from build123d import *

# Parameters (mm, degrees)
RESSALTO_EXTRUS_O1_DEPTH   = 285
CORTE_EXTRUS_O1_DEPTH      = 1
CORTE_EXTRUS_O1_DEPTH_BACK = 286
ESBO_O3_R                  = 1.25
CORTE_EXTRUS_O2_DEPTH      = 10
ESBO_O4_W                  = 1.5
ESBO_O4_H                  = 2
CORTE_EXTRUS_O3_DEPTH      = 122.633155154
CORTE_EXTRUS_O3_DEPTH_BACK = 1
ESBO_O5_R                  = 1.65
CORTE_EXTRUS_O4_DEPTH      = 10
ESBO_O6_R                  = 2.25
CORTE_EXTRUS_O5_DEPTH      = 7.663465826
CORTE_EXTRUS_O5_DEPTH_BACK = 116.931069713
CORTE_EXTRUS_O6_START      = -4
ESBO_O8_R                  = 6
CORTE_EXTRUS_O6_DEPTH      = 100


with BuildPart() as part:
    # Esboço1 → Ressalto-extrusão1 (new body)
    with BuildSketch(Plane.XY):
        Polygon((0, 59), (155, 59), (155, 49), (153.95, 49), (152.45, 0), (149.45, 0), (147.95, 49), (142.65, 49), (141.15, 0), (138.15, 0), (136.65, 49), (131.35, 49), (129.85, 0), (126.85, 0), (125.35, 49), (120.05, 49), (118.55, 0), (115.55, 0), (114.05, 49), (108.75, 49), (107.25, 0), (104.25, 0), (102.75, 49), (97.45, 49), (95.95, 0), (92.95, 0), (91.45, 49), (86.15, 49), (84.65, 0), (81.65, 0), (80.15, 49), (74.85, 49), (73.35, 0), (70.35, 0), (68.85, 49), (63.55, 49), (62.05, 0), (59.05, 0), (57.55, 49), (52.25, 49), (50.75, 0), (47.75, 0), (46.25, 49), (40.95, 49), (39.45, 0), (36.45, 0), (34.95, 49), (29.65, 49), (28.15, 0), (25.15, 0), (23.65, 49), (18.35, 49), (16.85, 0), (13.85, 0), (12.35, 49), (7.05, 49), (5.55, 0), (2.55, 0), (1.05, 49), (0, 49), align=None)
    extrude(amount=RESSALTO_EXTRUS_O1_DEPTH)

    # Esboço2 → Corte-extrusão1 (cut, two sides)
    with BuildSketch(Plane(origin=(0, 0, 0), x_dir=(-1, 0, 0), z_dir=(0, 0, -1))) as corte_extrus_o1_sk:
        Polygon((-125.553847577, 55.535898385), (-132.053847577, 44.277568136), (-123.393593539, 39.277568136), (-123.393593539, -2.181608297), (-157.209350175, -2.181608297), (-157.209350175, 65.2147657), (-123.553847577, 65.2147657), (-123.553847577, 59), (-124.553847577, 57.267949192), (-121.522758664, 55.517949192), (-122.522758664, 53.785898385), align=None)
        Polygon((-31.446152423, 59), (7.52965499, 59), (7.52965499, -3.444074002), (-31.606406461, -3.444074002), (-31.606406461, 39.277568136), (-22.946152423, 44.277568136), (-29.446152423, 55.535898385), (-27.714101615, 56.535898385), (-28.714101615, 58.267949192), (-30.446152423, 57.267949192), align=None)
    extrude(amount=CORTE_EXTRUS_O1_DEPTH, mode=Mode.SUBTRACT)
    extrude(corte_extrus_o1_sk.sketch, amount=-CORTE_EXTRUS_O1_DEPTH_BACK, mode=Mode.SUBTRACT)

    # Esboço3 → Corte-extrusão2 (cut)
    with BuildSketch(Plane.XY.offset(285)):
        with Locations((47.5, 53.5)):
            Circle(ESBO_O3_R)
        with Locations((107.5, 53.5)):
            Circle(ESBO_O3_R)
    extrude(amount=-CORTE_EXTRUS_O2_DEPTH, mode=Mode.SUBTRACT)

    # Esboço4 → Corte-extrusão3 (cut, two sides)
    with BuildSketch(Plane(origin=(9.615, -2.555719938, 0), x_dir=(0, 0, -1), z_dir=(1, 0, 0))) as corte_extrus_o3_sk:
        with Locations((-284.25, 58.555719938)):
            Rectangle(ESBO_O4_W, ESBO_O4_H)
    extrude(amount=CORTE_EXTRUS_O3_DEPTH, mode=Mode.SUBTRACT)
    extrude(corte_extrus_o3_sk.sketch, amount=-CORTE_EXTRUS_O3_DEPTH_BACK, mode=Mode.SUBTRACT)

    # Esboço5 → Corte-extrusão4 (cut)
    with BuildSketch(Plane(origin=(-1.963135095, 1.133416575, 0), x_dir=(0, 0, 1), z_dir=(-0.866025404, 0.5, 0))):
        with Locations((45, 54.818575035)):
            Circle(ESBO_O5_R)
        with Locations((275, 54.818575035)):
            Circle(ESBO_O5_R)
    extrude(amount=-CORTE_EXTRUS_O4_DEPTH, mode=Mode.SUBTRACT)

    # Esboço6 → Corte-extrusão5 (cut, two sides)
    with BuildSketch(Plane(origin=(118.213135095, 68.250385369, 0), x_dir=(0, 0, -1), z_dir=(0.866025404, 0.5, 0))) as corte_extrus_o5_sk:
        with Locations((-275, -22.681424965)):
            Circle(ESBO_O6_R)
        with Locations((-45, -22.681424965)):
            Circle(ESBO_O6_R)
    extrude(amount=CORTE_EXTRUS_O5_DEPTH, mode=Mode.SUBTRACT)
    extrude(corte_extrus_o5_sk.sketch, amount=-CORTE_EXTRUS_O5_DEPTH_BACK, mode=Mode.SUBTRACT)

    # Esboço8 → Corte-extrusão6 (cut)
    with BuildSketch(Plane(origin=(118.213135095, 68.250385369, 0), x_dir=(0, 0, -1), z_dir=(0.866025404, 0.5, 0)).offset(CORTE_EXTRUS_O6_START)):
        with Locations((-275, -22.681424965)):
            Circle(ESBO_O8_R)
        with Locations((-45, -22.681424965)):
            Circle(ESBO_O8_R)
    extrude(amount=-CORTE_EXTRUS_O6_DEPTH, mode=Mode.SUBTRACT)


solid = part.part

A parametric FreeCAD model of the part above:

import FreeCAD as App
import Part
import Sketcher
Q = App.Units.Quantity


def add_polygon(sketch, points):
    """Adds a closed chain of lines whose ends are joined by coincident constraints."""
    first, n = sketch.GeometryCount, len(points)
    for a, b in zip(points, points[1:] + points[:1]):
        sketch.addGeometry(Part.LineSegment(App.Vector(*a, 0), App.Vector(*b, 0)), False)
    for i in range(n):
        sketch.addConstraint(Sketcher.Constraint("Coincident", first + i, 2, first + (i + 1) % n, 1))

doc = App.newDocument("Part")
body = doc.addObject("PartDesign::Body", "Body")

# Sketch on XY plane
sketch1 = doc.addObject("Sketcher::SketchObject", "Sketch")
body.addObject(sketch1)
sketch1.AttachmentSupport = (doc.XY_Plane, [""])
sketch1.MapMode = "FlatFace"
add_polygon(sketch1, [(155, 59), (0, 59), (0, 49), (1.05, 49), (2.55, 0), (5.55, 0), (7.05, 49), (12.35, 49), (13.85, 0), (16.85, 0), (18.35, 49), (23.65, 49), (25.15, 0), (28.15, 0), (29.65, 49), (34.95, 49), (36.45, 0), (39.45, 0), (40.95, 49), (46.25, 49), (47.75, 0), (50.75, 0), (52.25, 49), (57.55, 49), (59.05, 0), (62.05, 0), (63.55, 49), (68.85, 49), (70.35, 0), (73.35, 0), (74.85, 49), (80.15, 49), (81.65, 0), (84.65, 0), (86.15, 49), (91.45, 49), (92.95, 0), (95.95, 0), (97.45, 49), (102.75, 49), (104.25, 0), (107.25, 0), (108.75, 49), (114.05, 49), (115.55, 0), (118.55, 0), (120.05, 49), (125.35, 49), (126.85, 0), (129.85, 0), (131.35, 49), (136.65, 49), (138.15, 0), (141.15, 0), (142.65, 49), (147.95, 49), (149.45, 0), (152.45, 0), (153.95, 49), (155, 49)])  # lines 0-59
sketch1.addConstraint([
    Sketcher.Constraint("Horizontal", 0),
    Sketcher.Constraint("Vertical", 1),
    Sketcher.Constraint("Horizontal", 2),
    Sketcher.Constraint("Horizontal", 4),
    Sketcher.Constraint("Horizontal", 6),
    Sketcher.Constraint("Horizontal", 8),
    Sketcher.Constraint("Horizontal", 10),
    Sketcher.Constraint("Horizontal", 12),
    Sketcher.Constraint("Horizontal", 14),
    Sketcher.Constraint("Horizontal", 16),
    Sketcher.Constraint("Horizontal", 18),
    Sketcher.Constraint("Horizontal", 20),
    Sketcher.Constraint("Horizontal", 22),
    Sketcher.Constraint("Horizontal", 24),
    Sketcher.Constraint("Horizontal", 26),
    Sketcher.Constraint("Horizontal", 28),
    Sketcher.Constraint("Horizontal", 30),
    Sketcher.Constraint("Horizontal", 32),
    Sketcher.Constraint("Horizontal", 34),
    Sketcher.Constraint("Horizontal", 36),
    Sketcher.Constraint("Horizontal", 38),
    Sketcher.Constraint("Horizontal", 40),
    Sketcher.Constraint("Horizontal", 42),
    Sketcher.Constraint("Horizontal", 44),
    Sketcher.Constraint("Horizontal", 46),
    Sketcher.Constraint("Horizontal", 48),
    Sketcher.Constraint("Horizontal", 50),
    Sketcher.Constraint("Horizontal", 52),
    Sketcher.Constraint("Horizontal", 54),
    Sketcher.Constraint("Horizontal", 56),
    Sketcher.Constraint("Horizontal", 58),
    Sketcher.Constraint("Vertical", 59),
    Sketcher.Constraint("PointOnObject", 0, 2, -2),
    Sketcher.Constraint("PointOnObject", 3, 2, -1),
    Sketcher.Constraint("PointOnObject", 7, 2, -1),
    Sketcher.Constraint("PointOnObject", 11, 2, -1),
    Sketcher.Constraint("PointOnObject", 15, 2, -1),
    Sketcher.Constraint("PointOnObject", 19, 2, -1),
    Sketcher.Constraint("PointOnObject", 23, 2, -1),
    Sketcher.Constraint("PointOnObject", 27, 2, -1),
    Sketcher.Constraint("PointOnObject", 31, 2, -1),
    Sketcher.Constraint("PointOnObject", 35, 2, -1),
    Sketcher.Constraint("PointOnObject", 39, 2, -1),
    Sketcher.Constraint("PointOnObject", 43, 2, -1),
    Sketcher.Constraint("PointOnObject", 47, 2, -1),
    Sketcher.Constraint("PointOnObject", 51, 2, -1),
    Sketcher.Constraint("PointOnObject", 55, 2, -1),
    Sketcher.Constraint("Parallel", 3, 7),
    Sketcher.Constraint("Parallel", 5, 9),
    Sketcher.Constraint("Parallel", 7, 11),
    Sketcher.Constraint("Parallel", 9, 13),
    Sketcher.Constraint("Parallel", 11, 15),
    Sketcher.Constraint("Parallel", 13, 17),
    Sketcher.Constraint("Parallel", 15, 19),
    Sketcher.Constraint("Parallel", 17, 21),
    Sketcher.Constraint("Parallel", 19, 23),
    Sketcher.Constraint("Parallel", 21, 25),
    Sketcher.Constraint("Parallel", 23, 27),
    Sketcher.Constraint("Parallel", 25, 29),
    Sketcher.Constraint("Parallel", 27, 31),
    Sketcher.Constraint("Parallel", 29, 33),
    Sketcher.Constraint("Parallel", 31, 35),
    Sketcher.Constraint("Parallel", 33, 37),
    Sketcher.Constraint("Parallel", 35, 39),
    Sketcher.Constraint("Parallel", 37, 41),
    Sketcher.Constraint("Parallel", 39, 43),
    Sketcher.Constraint("Parallel", 41, 45),
    Sketcher.Constraint("Parallel", 43, 47),
    Sketcher.Constraint("Parallel", 45, 49),
    Sketcher.Constraint("Parallel", 47, 51),
    Sketcher.Constraint("Parallel", 49, 53),
    Sketcher.Constraint("Parallel", 51, 55),
    Sketcher.Constraint("Parallel", 53, 57),
    Sketcher.Constraint("Horizontal", 2, 2, 5, 2),
    Sketcher.Constraint("Horizontal", 6, 2, 9, 2),
    Sketcher.Constraint("Horizontal", 10, 2, 13, 2),
    Sketcher.Constraint("Horizontal", 14, 2, 17, 2),
    Sketcher.Constraint("Horizontal", 18, 2, 21, 2),
    Sketcher.Constraint("Horizontal", 22, 2, 25, 2),
    Sketcher.Constraint("Horizontal", 26, 2, 29, 2),
    Sketcher.Constraint("Horizontal", 30, 2, 33, 2),
    Sketcher.Constraint("Horizontal", 34, 2, 37, 2),
    Sketcher.Constraint("Horizontal", 38, 2, 41, 2),
    Sketcher.Constraint("Horizontal", 42, 2, 45, 2),
    Sketcher.Constraint("Horizontal", 46, 2, 49, 2),
    Sketcher.Constraint("Horizontal", 50, 2, 53, 2),
    Sketcher.Constraint("Horizontal", 54, 2, 57, 2),
    Sketcher.Constraint("Equal", 4, 8),
    Sketcher.Constraint("Equal", 6, 10),
    Sketcher.Constraint("Equal", 8, 12),
    Sketcher.Constraint("Equal", 10, 14),
    Sketcher.Constraint("Equal", 12, 16),
    Sketcher.Constraint("Equal", 14, 18),
    Sketcher.Constraint("Equal", 16, 20),
    Sketcher.Constraint("Equal", 18, 22),
    Sketcher.Constraint("Equal", 20, 24),
    Sketcher.Constraint("Equal", 22, 26),
    Sketcher.Constraint("Equal", 24, 28),
    Sketcher.Constraint("Equal", 26, 30),
    Sketcher.Constraint("Equal", 28, 32),
    Sketcher.Constraint("Equal", 30, 34),
    Sketcher.Constraint("Equal", 32, 36),
    Sketcher.Constraint("Equal", 34, 38),
    Sketcher.Constraint("Equal", 36, 40),
    Sketcher.Constraint("Equal", 38, 42),
    Sketcher.Constraint("Equal", 40, 44),
    Sketcher.Constraint("Equal", 42, 46),
    Sketcher.Constraint("Equal", 44, 48),
    Sketcher.Constraint("Equal", 46, 50),
    Sketcher.Constraint("Equal", 48, 52),
    Sketcher.Constraint("Equal", 50, 54),
    Sketcher.Constraint("Equal", 52, 56),
    Sketcher.Constraint("Equal", 2, 58),
    Sketcher.Constraint("Equal", 3, 5),
    Sketcher.Constraint("DistanceX", 0, 2, 0, 1, Q("155 mm")),
    Sketcher.Constraint("DistanceX", 4, 1, 4, 2, Q("3 mm")),
    Sketcher.Constraint("DistanceY", 1, 2, 1, 1, Q("10 mm")),
    Sketcher.Constraint("DistanceX", 6, 1, 6, 2, Q("5.3 mm")),
    Sketcher.Constraint("DistanceY", -1, 1, 0, 2, Q("59 mm")),
    Sketcher.Constraint("DistanceX", 2, 2, 5, 2, Q("6 mm")),
])
pad1 = doc.addObject("PartDesign::Pad", "Pad")
body.addObject(pad1)
pad1.Profile = sketch1
pad1.Length = 285

# Sketch on XY plane
sketch2 = doc.addObject("Sketcher::SketchObject", "Sketch001")
body.addObject(sketch2)
sketch2.AttachmentSupport = (doc.XY_Plane, [""])
sketch2.MapMode = "FlatFace"
add_polygon(sketch2, [(132.053848, 44.277568), (125.553848, 55.535898), (122.522759, 53.785898), (121.522759, 55.517949), (124.553848, 57.267949), (123.553848, 59), (123.553848, 65.214766), (157.20935, 65.214766), (157.20935, -2.181608), (123.393594, -2.181608), (123.393594, 39.277568)])  # lines 0-10
add_polygon(sketch2, [(-7.529655, 59), (31.446152, 59), (30.446152, 57.267949), (28.714102, 58.267949), (27.714102, 56.535898), (29.446152, 55.535898), (22.946152, 44.277568), (31.606406, 39.277568), (31.606406, -3.444074), (-7.529655, -3.444074)])  # lines 11-20
sketch2.addConstraint([
    Sketcher.Constraint("Vertical", 5),
    Sketcher.Constraint("Horizontal", 6),
    Sketcher.Constraint("Vertical", 7),
    Sketcher.Constraint("Horizontal", 8),
    Sketcher.Constraint("Vertical", 9),
    Sketcher.Constraint("Horizontal", 11),
    Sketcher.Constraint("Vertical", 18),
    Sketcher.Constraint("Horizontal", 19),
    Sketcher.Constraint("Vertical", 20),
    Sketcher.Constraint("Perpendicular", 0, 1),
    Sketcher.Constraint("Perpendicular", 1, 2),
    Sketcher.Constraint("Perpendicular", 2, 3),
    Sketcher.Constraint("Perpendicular", 3, 4),
    Sketcher.Constraint("Perpendicular", 4, 10),
    Sketcher.Constraint("Perpendicular", 12, 13),
    Sketcher.Constraint("Perpendicular", 13, 14),
    Sketcher.Constraint("Perpendicular", 14, 15),
    Sketcher.Constraint("Perpendicular", 15, 16),
    Sketcher.Constraint("Perpendicular", 16, 17),
    Sketcher.Constraint("Horizontal", 4, 2, 11, 2),
    Sketcher.Constraint("Horizontal", 3, 2, 12, 2),
    Sketcher.Constraint("Horizontal", 0, 2, 15, 2),
    Sketcher.Constraint("Horizontal", 10, 2, 16, 2),
    Sketcher.Constraint("Horizontal", 9, 2, 17, 2),
    Sketcher.Constraint("Equal", 1, 3),
    Sketcher.Constraint("Equal", 2, 4),
    Sketcher.Constraint("Equal", 4, 12),
    Sketcher.Constraint("Equal", 12, 13),
    Sketcher.Constraint("Equal", 13, 14),
    Sketcher.Constraint("Angle", 0, Q("120 deg")),
    Sketcher.Constraint("Distance", 0, Q("13 mm")),
    Sketcher.Constraint("Distance", 2, Q("2 mm")),
    Sketcher.Constraint("Distance", 10, Q("10 mm")),
    Sketcher.Constraint("DistanceY", -1, 1, 4, 2, Q("59 mm")),
    Sketcher.Constraint("Distance", 1, Q("3.5 mm")),
    Sketcher.Constraint("DistanceX", 19, 2, 19, 1, Q("39.136061 mm")),
    Sketcher.Constraint("DistanceX", -1, 1, 13, 2, Q("28.714102 mm")),
    Sketcher.Constraint("DistanceX", 6, 1, 6, 2, Q("33.655503 mm")),
    Sketcher.Constraint("DistanceY", 5, 1, 5, 2, Q("6.214766 mm")),
    Sketcher.Constraint("DistanceY", 7, 2, 7, 1, Q("67.396374 mm")),
    Sketcher.Constraint("DistanceY", 18, 2, 18, 1, Q("42.721642 mm")),
    Sketcher.Constraint("DistanceX", -1, 1, 1, 2, Q("122.522759 mm")),
])
pocket1 = doc.addObject("PartDesign::Pocket", "Pocket")
body.addObject(pocket1)
pocket1.Profile = sketch2
pocket1.Type = "ThroughAll"
pocket1.Midplane = True

# Sketch on XY plane
sketch3 = doc.addObject("Sketcher::SketchObject", "Sketch002")
body.addObject(sketch3)
sketch3.AttachmentSupport = (doc.XY_Plane, [""])
sketch3.MapMode = "FlatFace"
sketch3.AttachmentOffset = App.Placement(App.Vector(0, 0, 285), App.Rotation())
sketch3.addGeometry([
    Part.Circle(App.Vector(47.5, 53.5, 0), App.Vector(0, 0, 1), 1.25),
    Part.Circle(App.Vector(107.5, 53.5, 0), App.Vector(0, 0, 1), 1.25),
], False)
sketch3.addConstraint([
    Sketcher.Constraint("Equal", 0, 1),
    Sketcher.Constraint("Horizontal", 0, 3, 1, 3),
    Sketcher.Constraint("Diameter", 0, Q("2.5 mm")),
    Sketcher.Constraint("DistanceX", 0, 3, 1, 3, Q("60 mm")),
    Sketcher.Constraint("DistanceX", -1, 1, 0, 3, Q("47.5 mm")),
    Sketcher.Constraint("DistanceY", -1, 1, 0, 3, Q("53.5 mm")),
])
pocket2 = doc.addObject("PartDesign::Pocket", "Pocket001")
body.addObject(pocket2)
pocket2.Profile = sketch3
pocket2.Length = 10

# Sketch on YZ plane
sketch4 = doc.addObject("Sketcher::SketchObject", "Sketch003")
body.addObject(sketch4)
sketch4.AttachmentSupport = (doc.YZ_Plane, [""])
sketch4.MapMode = "FlatFace"
sketch4.AttachmentOffset = App.Placement(App.Vector(0, 0, 9.615), App.Rotation())
add_polygon(sketch4, [(57, 285), (55, 285), (55, 283.5), (57, 283.5)])  # lines 0-3
sketch4.addConstraint([
    Sketcher.Constraint("Horizontal", 0),
    Sketcher.Constraint("Vertical", 1),
    Sketcher.Constraint("Horizontal", 2),
    Sketcher.Constraint("Vertical", 3),
    Sketcher.Constraint("DistanceX", 0, 2, 0, 1, Q("2 mm")),
    Sketcher.Constraint("DistanceY", 1, 2, 1, 1, Q("1.5 mm")),
    Sketcher.Constraint("DistanceX", -1, 1, 0, 2, Q("55 mm")),
    Sketcher.Constraint("DistanceY", -1, 1, 0, 2, Q("285 mm")),
])
pocket3 = doc.addObject("PartDesign::Pocket", "Pocket002")
body.addObject(pocket3)
pocket3.Profile = sketch4
pocket3.Type = "ThroughAll"
pocket3.Midplane = True

# Sketch on an angled plane
sketch5 = doc.addObject("Sketcher::SketchObject", "Sketch004")
body.addObject(sketch5)
sketch5.Placement = App.Placement(App.Vector(-1.963135, 1.133417, 0), App.Rotation(App.Vector(0, 0, 1), App.Vector(0.5, 0.866025404, 0), App.Vector(-0.866025404, 0.5, 0), "ZXY"))
sketch5.addGeometry([
    Part.Circle(App.Vector(45, 54.818575, 0), App.Vector(0, 0, 1), 1.65),
    Part.Circle(App.Vector(275, 54.818575, 0), App.Vector(0, 0, 1), 1.65),
], False)
sketch5.addConstraint([
    Sketcher.Constraint("Equal", 0, 1),
    Sketcher.Constraint("Horizontal", 0, 3, 1, 3),
    Sketcher.Constraint("Diameter", 0, Q("3.3 mm")),
    Sketcher.Constraint("DistanceX", -1, 1, 0, 3, Q("45 mm")),
    Sketcher.Constraint("DistanceX", -1, 1, 1, 3, Q("275 mm")),
    Sketcher.Constraint("DistanceY", -1, 1, 0, 3, Q("54.818575 mm")),
])
pocket4 = doc.addObject("PartDesign::Pocket", "Pocket003")
body.addObject(pocket4)
pocket4.Profile = sketch5
pocket4.Length = 10

# Sketch on an angled plane
sketch6 = doc.addObject("Sketcher::SketchObject", "Sketch005")
body.addObject(sketch6)
sketch6.Placement = App.Placement(App.Vector(118.213135, 68.250385, 0), App.Rotation(App.Vector(0, 0, -1), App.Vector(-0.5, 0.866025404, 0), App.Vector(0.866025404, 0.5, 0), "ZXY"))
sketch6.addGeometry([
    Part.Circle(App.Vector(-275, -22.681425, 0), App.Vector(0, 0, 1), 2.25),
    Part.Circle(App.Vector(-45, -22.681425, 0), App.Vector(0, 0, 1), 2.25),
], False)
sketch6.addConstraint([
    Sketcher.Constraint("Equal", 0, 1),
    Sketcher.Constraint("Horizontal", 0, 3, 1, 3),
    Sketcher.Constraint("Diameter", 0, Q("4.5 mm")),
    Sketcher.Constraint("DistanceX", 0, 3, -1, 1, Q("275 mm")),
    Sketcher.Constraint("DistanceX", 1, 3, -1, 1, Q("45 mm")),
    Sketcher.Constraint("DistanceY", 0, 3, -1, 1, Q("22.681425 mm")),
])
pocket5 = doc.addObject("PartDesign::Pocket", "Pocket004")
body.addObject(pocket5)
pocket5.Profile = sketch6
pocket5.Type = "ThroughAll"
pocket5.Midplane = True

# Sketch on an angled plane
sketch7 = doc.addObject("Sketcher::SketchObject", "Sketch006")
body.addObject(sketch7)
sketch7.Placement = App.Placement(App.Vector(114.749033, 66.250385, 0), App.Rotation(App.Vector(0, 0, -1), App.Vector(-0.5, 0.866025404, 0), App.Vector(0.866025404, 0.5, 0), "ZXY"))
sketch7.addGeometry([
    Part.Circle(App.Vector(-275, -22.681425, 0), App.Vector(0, 0, 1), 6),
    Part.Circle(App.Vector(-45, -22.681425, 0), App.Vector(0, 0, 1), 6),
], False)
sketch7.addConstraint([
    Sketcher.Constraint("Equal", 0, 1),
    Sketcher.Constraint("Horizontal", 0, 3, 1, 3),
    Sketcher.Constraint("Diameter", 0, Q("12 mm")),
    Sketcher.Constraint("DistanceX", 0, 3, -1, 1, Q("275 mm")),
    Sketcher.Constraint("DistanceX", 1, 3, -1, 1, Q("45 mm")),
    Sketcher.Constraint("DistanceY", 0, 3, -1, 1, Q("22.681425 mm")),
])
pocket6 = doc.addObject("PartDesign::Pocket", "Pocket005")
body.addObject(pocket6)
pocket6.Profile = sketch7
pocket6.Length = 100

doc.recompute()
